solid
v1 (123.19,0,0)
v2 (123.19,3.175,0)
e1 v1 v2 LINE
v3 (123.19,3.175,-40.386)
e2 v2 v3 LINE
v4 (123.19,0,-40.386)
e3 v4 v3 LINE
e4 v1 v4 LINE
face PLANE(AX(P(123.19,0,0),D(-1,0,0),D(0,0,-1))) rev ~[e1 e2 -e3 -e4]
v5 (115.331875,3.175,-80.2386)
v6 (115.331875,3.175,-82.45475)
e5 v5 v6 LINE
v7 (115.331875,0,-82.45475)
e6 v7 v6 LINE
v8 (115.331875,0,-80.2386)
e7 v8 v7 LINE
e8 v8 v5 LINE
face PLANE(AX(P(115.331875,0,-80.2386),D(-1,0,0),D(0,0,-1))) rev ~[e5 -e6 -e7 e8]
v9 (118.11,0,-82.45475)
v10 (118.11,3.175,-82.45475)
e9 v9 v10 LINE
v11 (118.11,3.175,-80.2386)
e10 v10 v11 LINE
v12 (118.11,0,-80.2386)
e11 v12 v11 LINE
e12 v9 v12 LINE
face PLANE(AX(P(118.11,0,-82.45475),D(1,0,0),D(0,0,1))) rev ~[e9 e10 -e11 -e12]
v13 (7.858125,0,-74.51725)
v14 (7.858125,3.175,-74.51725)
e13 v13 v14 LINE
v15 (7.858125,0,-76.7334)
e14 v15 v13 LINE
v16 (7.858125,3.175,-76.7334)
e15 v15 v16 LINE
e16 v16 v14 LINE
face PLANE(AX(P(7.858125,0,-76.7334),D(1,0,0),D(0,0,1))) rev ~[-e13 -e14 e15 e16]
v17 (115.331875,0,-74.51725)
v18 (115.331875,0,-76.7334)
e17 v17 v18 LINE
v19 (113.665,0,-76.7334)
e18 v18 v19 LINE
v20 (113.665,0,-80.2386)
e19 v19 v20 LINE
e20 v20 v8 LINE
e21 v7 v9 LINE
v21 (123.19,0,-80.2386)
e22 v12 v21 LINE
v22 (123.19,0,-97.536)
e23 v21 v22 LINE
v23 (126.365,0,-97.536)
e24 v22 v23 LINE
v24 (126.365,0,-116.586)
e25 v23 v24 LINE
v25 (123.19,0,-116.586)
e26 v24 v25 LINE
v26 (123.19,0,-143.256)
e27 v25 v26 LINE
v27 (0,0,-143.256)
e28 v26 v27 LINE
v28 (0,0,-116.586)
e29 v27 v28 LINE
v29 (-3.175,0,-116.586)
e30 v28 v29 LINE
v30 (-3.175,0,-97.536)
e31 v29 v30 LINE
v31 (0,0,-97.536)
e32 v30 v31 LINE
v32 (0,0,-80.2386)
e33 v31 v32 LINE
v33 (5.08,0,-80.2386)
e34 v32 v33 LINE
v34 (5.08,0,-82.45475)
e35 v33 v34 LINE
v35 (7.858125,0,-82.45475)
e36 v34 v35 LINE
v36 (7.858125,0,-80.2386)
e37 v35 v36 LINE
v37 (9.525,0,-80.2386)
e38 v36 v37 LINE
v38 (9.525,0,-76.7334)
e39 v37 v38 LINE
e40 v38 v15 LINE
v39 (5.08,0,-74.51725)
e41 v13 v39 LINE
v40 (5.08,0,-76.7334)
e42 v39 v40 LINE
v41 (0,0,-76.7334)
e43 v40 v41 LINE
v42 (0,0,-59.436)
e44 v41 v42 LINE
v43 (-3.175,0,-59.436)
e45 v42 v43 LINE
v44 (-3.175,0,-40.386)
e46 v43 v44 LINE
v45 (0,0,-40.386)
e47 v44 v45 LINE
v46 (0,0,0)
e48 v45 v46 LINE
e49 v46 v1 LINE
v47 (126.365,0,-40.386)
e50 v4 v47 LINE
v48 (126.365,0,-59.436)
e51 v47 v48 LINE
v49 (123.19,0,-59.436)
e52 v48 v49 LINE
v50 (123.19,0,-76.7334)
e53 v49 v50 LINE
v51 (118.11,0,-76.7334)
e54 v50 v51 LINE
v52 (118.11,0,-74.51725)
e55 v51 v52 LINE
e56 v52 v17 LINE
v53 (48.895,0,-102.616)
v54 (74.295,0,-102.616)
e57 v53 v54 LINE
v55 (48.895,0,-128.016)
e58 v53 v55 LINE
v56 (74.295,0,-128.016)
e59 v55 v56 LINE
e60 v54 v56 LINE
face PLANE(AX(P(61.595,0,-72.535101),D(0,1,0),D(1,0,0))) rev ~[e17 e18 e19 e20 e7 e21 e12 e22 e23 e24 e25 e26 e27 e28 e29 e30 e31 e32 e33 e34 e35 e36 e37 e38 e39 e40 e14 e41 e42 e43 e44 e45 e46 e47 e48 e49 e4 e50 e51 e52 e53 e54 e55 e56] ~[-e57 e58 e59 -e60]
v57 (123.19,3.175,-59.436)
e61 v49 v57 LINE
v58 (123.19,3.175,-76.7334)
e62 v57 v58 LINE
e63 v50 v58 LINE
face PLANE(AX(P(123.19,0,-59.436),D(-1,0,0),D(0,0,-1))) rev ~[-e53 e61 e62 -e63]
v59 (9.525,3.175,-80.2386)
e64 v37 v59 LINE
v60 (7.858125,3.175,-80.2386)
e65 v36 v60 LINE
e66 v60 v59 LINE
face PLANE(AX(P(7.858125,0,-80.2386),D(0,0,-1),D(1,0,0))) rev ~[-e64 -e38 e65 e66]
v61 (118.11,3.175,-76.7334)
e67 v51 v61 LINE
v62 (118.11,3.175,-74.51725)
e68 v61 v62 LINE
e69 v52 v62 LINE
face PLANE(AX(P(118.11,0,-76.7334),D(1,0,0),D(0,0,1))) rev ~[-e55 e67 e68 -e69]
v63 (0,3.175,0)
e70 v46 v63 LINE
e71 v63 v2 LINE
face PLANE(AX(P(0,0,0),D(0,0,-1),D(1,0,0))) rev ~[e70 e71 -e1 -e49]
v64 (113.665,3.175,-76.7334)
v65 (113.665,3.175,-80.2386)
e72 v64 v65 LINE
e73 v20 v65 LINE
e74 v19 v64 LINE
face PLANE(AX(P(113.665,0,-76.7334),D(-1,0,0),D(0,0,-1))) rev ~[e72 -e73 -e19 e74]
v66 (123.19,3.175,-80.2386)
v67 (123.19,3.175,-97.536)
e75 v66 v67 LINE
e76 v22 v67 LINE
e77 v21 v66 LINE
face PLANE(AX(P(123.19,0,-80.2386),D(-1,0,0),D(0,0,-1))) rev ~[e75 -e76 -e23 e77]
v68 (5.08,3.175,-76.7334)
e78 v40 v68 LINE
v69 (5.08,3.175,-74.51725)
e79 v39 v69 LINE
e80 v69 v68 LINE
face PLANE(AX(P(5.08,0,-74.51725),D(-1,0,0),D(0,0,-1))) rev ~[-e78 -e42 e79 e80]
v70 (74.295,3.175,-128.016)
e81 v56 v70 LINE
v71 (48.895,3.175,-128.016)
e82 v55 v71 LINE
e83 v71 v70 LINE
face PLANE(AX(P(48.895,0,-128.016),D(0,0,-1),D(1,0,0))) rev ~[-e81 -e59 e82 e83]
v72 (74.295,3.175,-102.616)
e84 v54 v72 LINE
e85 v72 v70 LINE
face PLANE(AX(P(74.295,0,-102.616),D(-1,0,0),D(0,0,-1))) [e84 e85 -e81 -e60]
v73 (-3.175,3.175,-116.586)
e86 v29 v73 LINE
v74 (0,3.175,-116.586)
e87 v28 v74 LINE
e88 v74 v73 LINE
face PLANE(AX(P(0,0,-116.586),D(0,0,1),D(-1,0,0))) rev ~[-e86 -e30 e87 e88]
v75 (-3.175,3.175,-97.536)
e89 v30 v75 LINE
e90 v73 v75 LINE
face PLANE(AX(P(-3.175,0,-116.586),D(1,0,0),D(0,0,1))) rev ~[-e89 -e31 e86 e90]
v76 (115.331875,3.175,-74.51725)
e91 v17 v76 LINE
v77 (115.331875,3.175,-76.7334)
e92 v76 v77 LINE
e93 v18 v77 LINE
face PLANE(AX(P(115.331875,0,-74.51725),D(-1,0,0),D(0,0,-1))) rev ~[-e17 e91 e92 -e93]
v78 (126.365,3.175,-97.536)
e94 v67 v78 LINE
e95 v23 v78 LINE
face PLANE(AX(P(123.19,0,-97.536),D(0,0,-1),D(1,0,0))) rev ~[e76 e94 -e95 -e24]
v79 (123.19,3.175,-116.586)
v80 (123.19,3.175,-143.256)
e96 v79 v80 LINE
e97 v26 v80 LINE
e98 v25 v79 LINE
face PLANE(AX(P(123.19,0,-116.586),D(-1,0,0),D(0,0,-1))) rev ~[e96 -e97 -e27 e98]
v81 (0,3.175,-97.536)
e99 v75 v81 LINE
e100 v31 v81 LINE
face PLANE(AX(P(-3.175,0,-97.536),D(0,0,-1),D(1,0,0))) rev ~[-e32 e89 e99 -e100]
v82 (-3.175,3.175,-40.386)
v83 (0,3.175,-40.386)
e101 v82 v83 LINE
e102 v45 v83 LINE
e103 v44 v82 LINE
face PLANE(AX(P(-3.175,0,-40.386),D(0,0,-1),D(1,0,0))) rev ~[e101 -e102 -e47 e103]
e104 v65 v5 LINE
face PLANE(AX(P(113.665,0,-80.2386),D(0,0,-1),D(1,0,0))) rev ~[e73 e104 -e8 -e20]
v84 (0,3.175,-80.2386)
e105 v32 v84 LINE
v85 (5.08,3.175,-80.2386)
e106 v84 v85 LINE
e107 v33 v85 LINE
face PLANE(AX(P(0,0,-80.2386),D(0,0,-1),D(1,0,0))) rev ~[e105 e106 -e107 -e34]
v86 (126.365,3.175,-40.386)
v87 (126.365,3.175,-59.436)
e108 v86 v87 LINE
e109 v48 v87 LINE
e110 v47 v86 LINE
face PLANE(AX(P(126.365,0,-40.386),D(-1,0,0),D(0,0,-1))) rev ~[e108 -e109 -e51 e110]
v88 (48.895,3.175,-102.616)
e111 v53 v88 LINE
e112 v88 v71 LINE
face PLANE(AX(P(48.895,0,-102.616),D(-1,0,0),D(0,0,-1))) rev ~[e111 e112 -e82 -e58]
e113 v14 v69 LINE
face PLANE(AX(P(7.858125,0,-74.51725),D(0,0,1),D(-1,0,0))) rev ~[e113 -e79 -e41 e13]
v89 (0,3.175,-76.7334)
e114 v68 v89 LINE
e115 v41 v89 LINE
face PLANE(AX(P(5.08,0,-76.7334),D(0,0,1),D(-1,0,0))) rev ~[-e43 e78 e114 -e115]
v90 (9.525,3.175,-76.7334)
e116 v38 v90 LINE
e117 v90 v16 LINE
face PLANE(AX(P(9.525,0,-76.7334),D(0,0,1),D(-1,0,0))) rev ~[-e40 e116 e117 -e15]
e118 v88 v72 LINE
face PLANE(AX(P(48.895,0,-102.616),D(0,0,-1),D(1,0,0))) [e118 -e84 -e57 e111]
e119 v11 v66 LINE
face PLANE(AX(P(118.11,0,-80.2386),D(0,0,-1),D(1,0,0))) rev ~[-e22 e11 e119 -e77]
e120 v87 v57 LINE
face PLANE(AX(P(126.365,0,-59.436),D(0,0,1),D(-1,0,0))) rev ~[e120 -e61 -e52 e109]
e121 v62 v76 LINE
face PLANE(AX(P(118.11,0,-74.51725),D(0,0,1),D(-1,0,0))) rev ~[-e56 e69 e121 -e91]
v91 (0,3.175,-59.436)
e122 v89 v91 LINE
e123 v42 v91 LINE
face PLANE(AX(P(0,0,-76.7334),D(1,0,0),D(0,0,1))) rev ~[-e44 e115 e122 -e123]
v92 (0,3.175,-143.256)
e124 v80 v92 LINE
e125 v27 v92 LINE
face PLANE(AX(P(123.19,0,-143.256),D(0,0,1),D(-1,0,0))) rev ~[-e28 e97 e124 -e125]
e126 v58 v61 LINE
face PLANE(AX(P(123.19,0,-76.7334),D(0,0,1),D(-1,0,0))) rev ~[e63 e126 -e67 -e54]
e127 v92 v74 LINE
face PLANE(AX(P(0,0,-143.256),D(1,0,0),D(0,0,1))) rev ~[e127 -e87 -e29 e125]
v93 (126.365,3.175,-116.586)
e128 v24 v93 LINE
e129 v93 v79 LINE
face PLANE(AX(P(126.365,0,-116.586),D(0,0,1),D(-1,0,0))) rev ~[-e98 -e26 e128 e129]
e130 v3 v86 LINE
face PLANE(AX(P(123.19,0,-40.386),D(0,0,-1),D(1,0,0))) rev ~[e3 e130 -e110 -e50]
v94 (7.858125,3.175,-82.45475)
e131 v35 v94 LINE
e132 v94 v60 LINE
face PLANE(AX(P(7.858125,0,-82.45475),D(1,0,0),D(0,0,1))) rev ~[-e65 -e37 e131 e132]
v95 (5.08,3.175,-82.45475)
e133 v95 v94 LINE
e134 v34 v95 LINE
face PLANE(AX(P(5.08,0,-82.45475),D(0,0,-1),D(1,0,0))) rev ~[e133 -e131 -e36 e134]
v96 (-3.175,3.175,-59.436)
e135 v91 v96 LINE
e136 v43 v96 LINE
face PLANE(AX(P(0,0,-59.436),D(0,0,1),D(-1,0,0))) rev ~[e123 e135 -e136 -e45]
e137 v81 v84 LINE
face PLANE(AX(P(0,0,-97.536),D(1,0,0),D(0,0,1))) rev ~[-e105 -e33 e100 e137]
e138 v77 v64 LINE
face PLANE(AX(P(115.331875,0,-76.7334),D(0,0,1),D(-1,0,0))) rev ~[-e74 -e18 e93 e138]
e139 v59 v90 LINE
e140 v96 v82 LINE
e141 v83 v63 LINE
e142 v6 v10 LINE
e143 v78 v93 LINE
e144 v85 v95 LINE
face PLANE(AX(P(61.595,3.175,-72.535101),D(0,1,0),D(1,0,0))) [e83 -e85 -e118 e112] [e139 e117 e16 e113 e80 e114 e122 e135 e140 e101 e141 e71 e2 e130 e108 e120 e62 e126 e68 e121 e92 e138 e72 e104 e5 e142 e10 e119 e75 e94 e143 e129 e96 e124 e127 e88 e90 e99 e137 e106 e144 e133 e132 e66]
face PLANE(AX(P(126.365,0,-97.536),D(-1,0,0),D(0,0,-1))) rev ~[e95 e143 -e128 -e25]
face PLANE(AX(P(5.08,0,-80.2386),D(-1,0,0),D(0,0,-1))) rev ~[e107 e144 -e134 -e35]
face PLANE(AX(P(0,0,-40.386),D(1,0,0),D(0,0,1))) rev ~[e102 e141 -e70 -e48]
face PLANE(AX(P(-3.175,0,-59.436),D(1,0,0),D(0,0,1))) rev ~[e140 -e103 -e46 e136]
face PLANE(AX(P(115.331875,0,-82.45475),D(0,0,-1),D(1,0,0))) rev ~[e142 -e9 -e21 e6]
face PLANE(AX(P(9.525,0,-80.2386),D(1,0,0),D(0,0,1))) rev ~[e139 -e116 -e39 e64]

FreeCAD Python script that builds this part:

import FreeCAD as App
import Part
import Sketcher
Q = App.Units.Quantity


def add_polygon(sketch, points):
    """Adds a closed chain of lines whose ends are joined by coincident constraints."""
    first, n = sketch.GeometryCount, len(points)
    for a, b in zip(points, points[1:] + points[:1]):
        sketch.addGeometry(Part.LineSegment(App.Vector(*a, 0), App.Vector(*b, 0)), False)
    for i in range(n):
        sketch.addConstraint(Sketcher.Constraint("Coincident", first + i, 2, first + (i + 1) % n, 1))

doc = App.newDocument("Part")
body = doc.addObject("PartDesign::Body", "Body")

sketch1 = body.newObject("Sketcher::SketchObject", "Sketch")
sketch1.AttachmentSupport = (doc.getObject("XZ_Plane"), [""])
sketch1.MapMode = "FlatFace"
add_polygon(sketch1, [(123.2, -116.6), (123.2, -143.3), (0, -143.3), (0, -116.6), (-3.2, -116.6), (-3.2, -97.5), (0, -97.5), (0, -80.2), (5.1, -80.2), (5.1, -82.5), (7.9, -82.5), (7.9, -80.2), (9.5, -80.2), (9.5, -76.7), (7.9, -76.7), (7.9, -74.5), (5.1, -74.5), (5.1, -76.7), (0, -76.7), (0, -59.4), (-3.2, -59.4), (-3.2, -40.4), (0, -40.4), (0, 0), (123.2, 0), (123.2, -40.4), (126.4, -40.4), (126.4, -59.4), (123.2, -59.4), (123.2, -76.7), (118.1, -76.7), (118.1, -74.5), (115.3, -74.5), (115.3, -76.7), (113.7, -76.7), (113.7, -80.2), (115.3, -80.2), (115.3, -82.5), (118.1, -82.5), (118.1, -80.2), (123.2, -80.2), (123.2, -97.5), (126.4, -97.5), (126.4, -116.6)])
add_polygon(sketch1, [(74.3, -102.6), (48.9, -102.6), (48.9, -128), (74.3, -128)])
sketch1.addConstraint([
    Sketcher.Constraint("Vertical", 0),
    Sketcher.Constraint("Horizontal", 1),
    Sketcher.Constraint("Vertical", 2),
    Sketcher.Constraint("Horizontal", 3),
    Sketcher.Constraint("Vertical", 4),
    Sketcher.Constraint("Horizontal", 5),
    Sketcher.Constraint("Vertical", 6),
    Sketcher.Constraint("Horizontal", 7),
    Sketcher.Constraint("Vertical", 8),
    Sketcher.Constraint("Horizontal", 9),
    Sketcher.Constraint("Vertical", 10),
    Sketcher.Constraint("Horizontal", 11),
    Sketcher.Constraint("Vertical", 12),
    Sketcher.Constraint("Horizontal", 13),
    Sketcher.Constraint("Vertical", 14),
    Sketcher.Constraint("Horizontal", 15),
    Sketcher.Constraint("Vertical", 16),
    Sketcher.Constraint("Horizontal", 17),
    Sketcher.Constraint("Vertical", 18),
    Sketcher.Constraint("Horizontal", 19),
    Sketcher.Constraint("Vertical", 20),
    Sketcher.Constraint("Horizontal", 21),
    Sketcher.Constraint("Vertical", 22),
    Sketcher.Constraint("Horizontal", 23),
    Sketcher.Constraint("Vertical", 24),
    Sketcher.Constraint("Horizontal", 25),
    Sketcher.Constraint("Vertical", 26),
    Sketcher.Constraint("Horizontal", 27),
    Sketcher.Constraint("Vertical", 28),
    Sketcher.Constraint("Horizontal", 29),
    Sketcher.Constraint("Vertical", 30),
    Sketcher.Constraint("Horizontal", 31),
    Sketcher.Constraint("Vertical", 32),
    Sketcher.Constraint("Horizontal", 33),
    Sketcher.Constraint("Vertical", 34),
    Sketcher.Constraint("Horizontal", 35),
    Sketcher.Constraint("Vertical", 36),
    Sketcher.Constraint("Horizontal", 37),
    Sketcher.Constraint("Vertical", 38),
    Sketcher.Constraint("Horizontal", 39),
    Sketcher.Constraint("Vertical", 40),
    Sketcher.Constraint("Horizontal", 41),
    Sketcher.Constraint("Vertical", 42),
    Sketcher.Constraint("Horizontal", 43),
    Sketcher.Constraint("Horizontal", 44),
    Sketcher.Constraint("Vertical", 45),
    Sketcher.Constraint("Horizontal", 46),
    Sketcher.Constraint("Vertical", 47),
    Sketcher.Constraint("Coincident", 22, 2, -1, 1),
    Sketcher.Constraint("PointOnObject", 1, 2, -2),
    Sketcher.Constraint("PointOnObject", 5, 2, -2),
    Sketcher.Constraint("PointOnObject", 17, 2, -2),
    Sketcher.Constraint("Horizontal", 7, 2, 10, 2),
    Sketcher.Constraint("Horizontal", 13, 2, 16, 2),
    Sketcher.Constraint("Horizontal", 21, 2, 24, 2),
    Sketcher.Constraint("Horizontal", 19, 2, 26, 2),
    Sketcher.Constraint("Horizontal", 17, 2, 28, 2),
    Sketcher.Constraint("Horizontal", 15, 2, 30, 2),
    Sketcher.Constraint("Horizontal", 29, 2, 32, 2),
    Sketcher.Constraint("Horizontal", 11, 2, 34, 2),
    Sketcher.Constraint("Horizontal", 9, 2, 36, 2),
    Sketcher.Constraint("Horizontal", 35, 2, 38, 2),
    Sketcher.Constraint("Horizontal", 5, 2, 40, 2),
    Sketcher.Constraint("Horizontal", 3, 2, 42, 2),
    Sketcher.Constraint("Vertical", 10, 2, 13, 2),
    Sketcher.Constraint("Vertical", 8, 2, 15, 2),
    Sketcher.Constraint("Vertical", 4, 2, 19, 2),
    Sketcher.Constraint("Vertical", 0, 2, 23, 2),
    Sketcher.Constraint("Vertical", 24, 2, 27, 2),
    Sketcher.Constraint("Vertical", 32, 2, 35, 2),
    Sketcher.Constraint("Vertical", 30, 2, 37, 2),
    Sketcher.Constraint("Vertical", 28, 2, 39, 2),
    Sketcher.Constraint("Vertical", 26, 2, 41, 2),
    Sketcher.Constraint("Equal", 21, 25),
    Sketcher.Constraint("Equal", 17, 29),
    Sketcher.Constraint("Equal", 15, 31),
    Sketcher.Constraint("Equal", 13, 33),
    Sketcher.Constraint("Equal", 10, 14),
    Sketcher.Constraint("Equal", 6, 18),
    Sketcher.Constraint("Equal", 4, 20),
    Sketcher.Constraint("Equal", 46, 45),
    Sketcher.Constraint("DistanceX", 44, 2, 44, 1, Q("1 in")),
    Sketcher.Constraint("DistanceX", 7, 1, 7, 2, Q("0.2 in")),
    Sketcher.Constraint("DistanceX", 1, 2, 1, 1, Q("4.85 in")),
    Sketcher.Constraint("DistanceY", 0, 2, 0, 1, Q("1.05 in")),
    Sketcher.Constraint("DistanceY", 4, 1, 4, 2, Q("0.75 in")),
    Sketcher.Constraint("DistanceY", 22, 1, 22, 2, Q("1.59 in")),
    Sketcher.Constraint("DistanceX", 12, 2, 25, 2, Q("4.6 in")),
    Sketcher.Constraint("DistanceY", 0, 2, 26, 2, Q("3.3 in")),
    Sketcher.Constraint("DistanceY", 1, 2, 45, 2, Q("0.6 in")),
    Sketcher.Constraint("DistanceX", 3, 2, 3, 1, Q("0.125 in")),
    Sketcher.Constraint("DistanceX", 9, 1, 9, 2, Q("0.109375 in")),
    Sketcher.Constraint("DistanceY", 6, 1, 6, 2, Q("0.681 in")),
    Sketcher.Constraint("DistanceX", 11, 2, 44, 2, Q("1.55 in")),
    Sketcher.Constraint("DistanceY", 5, 2, 8, 2, Q("0.59375 in")),
])
pad1 = body.newObject("PartDesign::Pad", "Pad")
pad1.Profile = sketch1
pad1.Length = Q("0.125 in")
pad1.Reversed = True

doc.recompute()
